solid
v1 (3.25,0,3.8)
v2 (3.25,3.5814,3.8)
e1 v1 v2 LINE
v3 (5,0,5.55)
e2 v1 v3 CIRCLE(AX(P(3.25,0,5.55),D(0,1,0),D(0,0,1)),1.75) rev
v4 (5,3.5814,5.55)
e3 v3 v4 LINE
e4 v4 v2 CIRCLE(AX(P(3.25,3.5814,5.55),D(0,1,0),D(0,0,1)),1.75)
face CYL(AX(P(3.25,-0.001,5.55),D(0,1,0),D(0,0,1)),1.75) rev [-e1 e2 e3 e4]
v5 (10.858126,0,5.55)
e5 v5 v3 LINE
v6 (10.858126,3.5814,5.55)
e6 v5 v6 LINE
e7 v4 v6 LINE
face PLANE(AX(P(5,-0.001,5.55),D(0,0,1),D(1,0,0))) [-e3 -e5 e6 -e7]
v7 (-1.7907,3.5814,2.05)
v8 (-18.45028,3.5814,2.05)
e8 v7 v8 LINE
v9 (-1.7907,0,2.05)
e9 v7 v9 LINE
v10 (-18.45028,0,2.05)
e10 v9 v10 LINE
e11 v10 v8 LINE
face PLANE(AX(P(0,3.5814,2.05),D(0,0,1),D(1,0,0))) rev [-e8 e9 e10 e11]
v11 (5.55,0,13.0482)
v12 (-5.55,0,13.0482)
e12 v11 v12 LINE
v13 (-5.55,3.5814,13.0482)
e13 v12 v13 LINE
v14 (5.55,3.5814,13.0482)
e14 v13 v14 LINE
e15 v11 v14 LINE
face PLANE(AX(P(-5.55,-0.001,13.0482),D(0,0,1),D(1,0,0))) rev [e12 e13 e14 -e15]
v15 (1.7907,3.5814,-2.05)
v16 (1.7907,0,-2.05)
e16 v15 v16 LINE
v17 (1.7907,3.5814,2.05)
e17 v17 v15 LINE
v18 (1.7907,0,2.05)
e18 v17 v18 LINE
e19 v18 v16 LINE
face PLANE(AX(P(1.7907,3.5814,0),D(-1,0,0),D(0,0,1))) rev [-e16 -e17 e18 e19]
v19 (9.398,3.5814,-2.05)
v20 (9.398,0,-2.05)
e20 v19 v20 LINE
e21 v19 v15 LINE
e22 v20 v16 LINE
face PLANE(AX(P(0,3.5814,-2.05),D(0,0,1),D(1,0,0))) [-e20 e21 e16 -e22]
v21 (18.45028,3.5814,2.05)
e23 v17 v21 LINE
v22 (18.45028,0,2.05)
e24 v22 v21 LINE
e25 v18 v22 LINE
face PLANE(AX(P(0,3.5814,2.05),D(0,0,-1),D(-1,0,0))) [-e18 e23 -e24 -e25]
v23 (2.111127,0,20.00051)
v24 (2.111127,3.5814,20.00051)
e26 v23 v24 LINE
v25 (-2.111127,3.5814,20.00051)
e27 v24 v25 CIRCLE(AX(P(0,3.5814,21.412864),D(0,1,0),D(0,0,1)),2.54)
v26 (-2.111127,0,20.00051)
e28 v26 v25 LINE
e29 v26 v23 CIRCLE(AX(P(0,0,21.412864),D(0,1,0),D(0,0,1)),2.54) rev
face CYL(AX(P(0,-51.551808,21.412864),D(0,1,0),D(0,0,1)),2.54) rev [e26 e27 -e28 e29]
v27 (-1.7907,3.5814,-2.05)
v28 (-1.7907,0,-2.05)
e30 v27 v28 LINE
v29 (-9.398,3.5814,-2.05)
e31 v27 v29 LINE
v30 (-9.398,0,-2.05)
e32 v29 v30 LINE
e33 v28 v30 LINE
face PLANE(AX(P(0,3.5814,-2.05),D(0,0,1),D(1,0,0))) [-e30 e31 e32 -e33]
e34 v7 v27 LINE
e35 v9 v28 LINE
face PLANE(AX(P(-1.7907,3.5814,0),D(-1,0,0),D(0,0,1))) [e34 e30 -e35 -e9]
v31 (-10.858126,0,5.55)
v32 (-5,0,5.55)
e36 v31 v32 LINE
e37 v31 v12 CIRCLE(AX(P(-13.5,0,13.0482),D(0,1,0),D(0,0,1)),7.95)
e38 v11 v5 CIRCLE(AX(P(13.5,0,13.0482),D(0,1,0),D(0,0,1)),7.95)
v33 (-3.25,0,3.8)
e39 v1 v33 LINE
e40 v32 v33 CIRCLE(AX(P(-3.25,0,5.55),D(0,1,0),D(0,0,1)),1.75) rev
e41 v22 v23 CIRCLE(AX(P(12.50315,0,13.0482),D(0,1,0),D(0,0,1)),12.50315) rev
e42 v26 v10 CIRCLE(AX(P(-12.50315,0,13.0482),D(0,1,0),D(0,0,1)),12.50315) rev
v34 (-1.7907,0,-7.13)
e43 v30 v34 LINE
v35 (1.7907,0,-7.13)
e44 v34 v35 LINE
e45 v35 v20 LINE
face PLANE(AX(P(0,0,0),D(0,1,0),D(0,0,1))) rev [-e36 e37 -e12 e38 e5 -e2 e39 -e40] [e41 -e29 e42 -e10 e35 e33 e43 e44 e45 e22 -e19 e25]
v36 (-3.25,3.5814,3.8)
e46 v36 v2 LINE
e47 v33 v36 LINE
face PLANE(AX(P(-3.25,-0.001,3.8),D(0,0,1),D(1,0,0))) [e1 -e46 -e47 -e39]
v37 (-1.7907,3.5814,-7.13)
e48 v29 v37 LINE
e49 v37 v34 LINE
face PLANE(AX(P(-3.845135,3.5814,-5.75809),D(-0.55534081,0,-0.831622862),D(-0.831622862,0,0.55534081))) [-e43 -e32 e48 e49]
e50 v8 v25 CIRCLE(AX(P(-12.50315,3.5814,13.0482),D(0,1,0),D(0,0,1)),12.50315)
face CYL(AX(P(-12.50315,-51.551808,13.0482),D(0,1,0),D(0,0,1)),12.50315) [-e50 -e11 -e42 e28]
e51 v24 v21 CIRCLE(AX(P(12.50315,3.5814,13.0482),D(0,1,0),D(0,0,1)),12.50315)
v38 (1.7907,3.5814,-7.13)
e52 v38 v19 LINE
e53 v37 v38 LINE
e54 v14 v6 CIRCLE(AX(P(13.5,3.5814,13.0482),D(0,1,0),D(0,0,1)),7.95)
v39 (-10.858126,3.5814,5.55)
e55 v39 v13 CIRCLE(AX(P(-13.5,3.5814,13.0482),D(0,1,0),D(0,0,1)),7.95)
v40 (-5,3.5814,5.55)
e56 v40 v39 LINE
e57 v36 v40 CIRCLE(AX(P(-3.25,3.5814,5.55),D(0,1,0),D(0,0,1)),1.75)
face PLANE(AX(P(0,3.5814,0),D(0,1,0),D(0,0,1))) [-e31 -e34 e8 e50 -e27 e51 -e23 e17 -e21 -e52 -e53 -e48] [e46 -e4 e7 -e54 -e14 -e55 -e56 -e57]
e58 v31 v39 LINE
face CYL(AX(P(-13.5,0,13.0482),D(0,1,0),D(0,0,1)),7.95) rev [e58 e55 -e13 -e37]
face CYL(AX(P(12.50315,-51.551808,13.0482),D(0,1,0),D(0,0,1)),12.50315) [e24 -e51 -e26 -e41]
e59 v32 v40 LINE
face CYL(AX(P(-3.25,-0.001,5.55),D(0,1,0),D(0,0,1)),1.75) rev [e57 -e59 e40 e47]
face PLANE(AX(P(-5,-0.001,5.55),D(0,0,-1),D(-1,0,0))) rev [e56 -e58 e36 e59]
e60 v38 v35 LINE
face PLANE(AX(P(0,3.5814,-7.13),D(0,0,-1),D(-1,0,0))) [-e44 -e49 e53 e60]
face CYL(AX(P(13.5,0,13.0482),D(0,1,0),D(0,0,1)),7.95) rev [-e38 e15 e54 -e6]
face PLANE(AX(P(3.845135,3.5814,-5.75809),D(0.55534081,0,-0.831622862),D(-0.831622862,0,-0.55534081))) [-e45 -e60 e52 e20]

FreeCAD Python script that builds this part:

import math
import FreeCAD as App
import Part
import Sketcher

doc = App.newDocument("Part")
body = doc.addObject("PartDesign::Body", "Body")

# Sketch on XZ plane
sketch1 = doc.addObject("Sketcher::SketchObject", "Sketch")
body.addObject(sketch1)
sketch1.AttachmentSupport = (doc.XZ_Plane, [""])
sketch1.MapMode = "FlatFace"
sketch1.addGeometry([
    Part.LineSegment(App.Vector(-25.0063, 13.0482, 0), App.Vector(25.0063, 13.0482, 0)),  # 0
    Part.LineSegment(App.Vector(25.0063, 13.0482, 0), App.Vector(25.0063, 2.05, 0)),  # 1
    Part.LineSegment(App.Vector(25.0063, 2.05, 0), App.Vector(1.7907, 2.05, 0)),  # 2
    Part.LineSegment(App.Vector(1.7907, 2.05, 0), App.Vector(1.7907, -2.05, 0)),  # 3
    Part.LineSegment(App.Vector(1.7907, -2.05, 0), App.Vector(9.398, -2.05, 0)),  # 4
    Part.LineSegment(App.Vector(9.398, -2.05, 0), App.Vector(1.7907, -7.13, 0)),  # 5
    Part.LineSegment(App.Vector(1.7907, -7.13, 0), App.Vector(-1.7907, -7.13, 0)),  # 6
    Part.LineSegment(App.Vector(-1.7907, -7.13, 0), App.Vector(-9.398, -2.05, 0)),  # 7
    Part.LineSegment(App.Vector(-9.398, -2.05, 0), App.Vector(-1.7907, -2.05, 0)),  # 8
    Part.LineSegment(App.Vector(-1.7907, -2.05, 0), App.Vector(-1.7907, 2.05, 0)),  # 9
    Part.LineSegment(App.Vector(-1.7907, 2.05, 0), App.Vector(-25.0063, 2.05, 0)),  # 10
    Part.LineSegment(App.Vector(-25.0063, 2.05, 0), App.Vector(-25.0063, 13.0482, 0)),  # 11
], False)
sketch1.addConstraint([
    Sketcher.Constraint("Coincident", 0, 2, 1, 1),
    Sketcher.Constraint("Coincident", 1, 2, 2, 1),
    Sketcher.Constraint("Coincident", 2, 2, 3, 1),
    Sketcher.Constraint("Coincident", 3, 2, 4, 1),
    Sketcher.Constraint("Coincident", 4, 2, 5, 1),
    Sketcher.Constraint("Coincident", 5, 2, 6, 1),
    Sketcher.Constraint("Coincident", 6, 2, 7, 1),
    Sketcher.Constraint("Coincident", 7, 2, 8, 1),
    Sketcher.Constraint("Coincident", 8, 2, 9, 1),
    Sketcher.Constraint("Coincident", 9, 2, 10, 1),
    Sketcher.Constraint("Coincident", 10, 2, 11, 1),
    Sketcher.Constraint("Coincident", 11, 2, 0, 1),
    Sketcher.Constraint("Horizontal", 0),
    Sketcher.Constraint("Vertical", 1),
    Sketcher.Constraint("Horizontal", 2),
    Sketcher.Constraint("Vertical", 3),
    Sketcher.Constraint("Horizontal", 4),
    Sketcher.Constraint("Horizontal", 6),
    Sketcher.Constraint("Horizontal", 8),
    Sketcher.Constraint("Vertical", 9),
    Sketcher.Constraint("Horizontal", 10),
    Sketcher.Constraint("Vertical", 11),
    Sketcher.Constraint("Symmetric", 2, 2, 8, 2, -1, 1),
    Sketcher.Constraint("Symmetric", 4, 2, 7, 2, -2),
    Sketcher.Constraint("Symmetric", 1, 2, 10, 2, -2),
    Sketcher.Constraint("Vertical", 3, 2, 5, 2),
    Sketcher.Constraint("Vertical", 6, 2, 8, 2),
    Sketcher.Constraint("DistanceY", 3, 2, 3, 1, 4.1),
    Sketcher.Constraint("DistanceY", 5, 2, -1, 1, 7.13),
    Sketcher.Constraint("DistanceX", 0, 1, 0, 2, 50.0126),
    Sketcher.Constraint("DistanceX", 2, 2, 2, 1, 23.2156),
    Sketcher.Constraint("DistanceX", 4, 1, 4, 2, 7.6073),
    Sketcher.Constraint("DistanceY", 1, 2, 1, 1, 10.9982),
])
pad1 = doc.addObject("PartDesign::Pad", "Pad")
body.addObject(pad1)
pad1.Profile = sketch1
pad1.Length = 3.5814
pad1.Reversed = True

# Sketch on XZ plane
sketch2 = doc.addObject("Sketcher::SketchObject", "Sketch001")
body.addObject(sketch2)
sketch2.AttachmentSupport = (doc.XZ_Plane, [""])
sketch2.MapMode = "FlatFace"
sketch2.AttachmentOffset = App.Placement(App.Vector(0, 0, -3.5814), App.Rotation())
sketch2.addGeometry([
    Part.LineSegment(App.Vector(-25.0063, 2.05, 0), App.Vector(-25.0063, 13.0482, 0)),  # 0
    Part.ArcOfCircle(Part.Circle(App.Vector(-12.50315, 13.0482, 0), App.Vector(0, 0, 1), 12.50315), math.radians(33.782702), math.radians(180)),  # 1
    Part.ArcOfCircle(Part.Circle(App.Vector(0, 21.412864, 0), App.Vector(0, 0, 1), 2.54), math.radians(-146.217298), math.radians(-33.782702)),  # 2
    Part.ArcOfCircle(Part.Circle(App.Vector(12.50315, 13.0482, 0), App.Vector(0, 0, 1), 12.50315), math.radians(0), math.radians(146.217298)),  # 3
    Part.LineSegment(App.Vector(25.0063, 13.0482, 0), App.Vector(25.0063, 2.05, 0)),  # 4
    Part.LineSegment(App.Vector(25.0063, 2.05, 0), App.Vector(1.7907, 2.05, 0)),  # 5
    Part.LineSegment(App.Vector(1.7907, 2.05, 0), App.Vector(1.7907, -2.05, 0)),  # 6
    Part.LineSegment(App.Vector(1.7907, -2.05, 0), App.Vector(9.398, -2.05, 0)),  # 7
    Part.LineSegment(App.Vector(9.398, -2.05, 0), App.Vector(1.7907, -7.13, 0)),  # 8
    Part.LineSegment(App.Vector(1.7907, -7.13, 0), App.Vector(-1.7907, -7.13, 0)),  # 9
    Part.LineSegment(App.Vector(-1.7907, -7.13, 0), App.Vector(-9.398, -2.05, 0)),  # 10
    Part.LineSegment(App.Vector(-9.398, -2.05, 0), App.Vector(-1.7907, -2.05, 0)),  # 11
    Part.LineSegment(App.Vector(-1.7907, -2.05, 0), App.Vector(-1.7907, 2.05, 0)),  # 12
    Part.LineSegment(App.Vector(-1.7907, 2.05, 0), App.Vector(-25.0063, 2.05, 0)),  # 13
], False)
sketch2.addConstraint([
    Sketcher.Constraint("Tangent", 0, 2, 1, 2),
    Sketcher.Constraint("Tangent", 1, 1, 2, 1),
    Sketcher.Constraint("Tangent", 2, 2, 3, 2),
    Sketcher.Constraint("Tangent", 3, 1, 4, 1),
    Sketcher.Constraint("Coincident", 4, 2, 5, 1),
    Sketcher.Constraint("Coincident", 5, 2, 6, 1),
    Sketcher.Constraint("Coincident", 6, 2, 7, 1),
    Sketcher.Constraint("Coincident", 7, 2, 8, 1),
    Sketcher.Constraint("Coincident", 8, 2, 9, 1),
    Sketcher.Constraint("Coincident", 9, 2, 10, 1),
    Sketcher.Constraint("Coincident", 10, 2, 11, 1),
    Sketcher.Constraint("Coincident", 11, 2, 12, 1),
    Sketcher.Constraint("Coincident", 12, 2, 13, 1),
    Sketcher.Constraint("Coincident", 13, 2, 0, 1),
    Sketcher.Constraint("Vertical", 0),
    Sketcher.Constraint("Vertical", 4),
    Sketcher.Constraint("Horizontal", 5),
    Sketcher.Constraint("Vertical", 6),
    Sketcher.Constraint("Horizontal", 7),
    Sketcher.Constraint("Horizontal", 9),
    Sketcher.Constraint("Horizontal", 11),
    Sketcher.Constraint("Vertical", 12),
    Sketcher.Constraint("Horizontal", 13),
    Sketcher.Constraint("Equal", 1, 3),
    Sketcher.Constraint("Symmetric", 5, 2, 11, 2, -1, 1),
    Sketcher.Constraint("Symmetric", 1, 3, 3, 3, -2),
    Sketcher.Constraint("Symmetric", 7, 2, 10, 2, -2),
    Sketcher.Constraint("Horizontal", 5, 2, 12, 2),
    Sketcher.Constraint("Vertical", 6, 2, 8, 2),
    Sketcher.Constraint("Vertical", 9, 2, 11, 2),
    Sketcher.Constraint("Radius", 2, 2.54),
    Sketcher.Constraint("DistanceY", 6, 2, 6, 1, 4.1),
    Sketcher.Constraint("DistanceY", 8, 2, -1, 1, 7.13),
    Sketcher.Constraint("Radius", 1, 12.50315),
    Sketcher.Constraint("DistanceX", 5, 2, 5, 1, 23.2156),
    Sketcher.Constraint("DistanceX", 7, 1, 7, 2, 7.6073),
    Sketcher.Constraint("DistanceX", 9, 2, 9, 1, 3.5814),
    Sketcher.Constraint("DistanceY", 0, 1, 0, 2, 10.9982),
])
pad2 = doc.addObject("PartDesign::Pad", "Pad001")
body.addObject(pad2)
pad2.Profile = sketch2
pad2.Length = 3.5814

# Sketch on XZ plane
sketch3 = doc.addObject("Sketcher::SketchObject", "Sketch002")
body.addObject(sketch3)
sketch3.AttachmentSupport = (doc.XZ_Plane, [""])
sketch3.MapMode = "FlatFace"
sketch3.AttachmentOffset = App.Placement(App.Vector(0, 0, -3.5814), App.Rotation())
sketch3.addGeometry([
    Part.Circle(App.Vector(-13.5, 13.0482, 0), App.Vector(0, 0, 1), 7.95),
    Part.Circle(App.Vector(13.5, 13.0482, 0), App.Vector(0, 0, 1), 7.95),
], False)
sketch3.addConstraint([
    Sketcher.Constraint("Equal", 0, 1),
    Sketcher.Constraint("Symmetric", 0, 3, 1, 3, -2),
    Sketcher.Constraint("Diameter", 0, 15.9),
    Sketcher.Constraint("DistanceX", 0, 3, 1, 3, 27.0),
    Sketcher.Constraint("DistanceY", -1, 1, 0, 3, 13.0482),
])
pocket1 = doc.addObject("PartDesign::Pocket", "Pocket")
body.addObject(pocket1)
pocket1.Profile = sketch3
pocket1.Type = "ThroughAll"
pocket1.Reversed = True

# Sketch on XZ plane
sketch4 = doc.addObject("Sketcher::SketchObject", "Sketch003")
body.addObject(sketch4)
sketch4.AttachmentSupport = (doc.XZ_Plane, [""])
sketch4.MapMode = "FlatFace"
sketch4.AttachmentOffset = App.Placement(App.Vector(0, 0, -3.5814), App.Rotation())
sketch4.addGeometry([
    Part.LineSegment(App.Vector(3.25, 3.8, 0), App.Vector(-3.25, 3.8, 0)),  # 0
    Part.ArcOfCircle(Part.Circle(App.Vector(-3.25, 5.55, 0), App.Vector(0, 0, 1), 1.75), math.radians(180), math.radians(270)),  # 1
    Part.LineSegment(App.Vector(-5, 5.55, 0), App.Vector(-10.858126, 5.55, 0)),  # 2
    Part.ArcOfCircle(Part.Circle(App.Vector(-13.5, 13.0482, 0), App.Vector(0, 0, 1), 7.95), math.radians(-70.590886), math.radians(0)),  # 3
    Part.LineSegment(App.Vector(-5.55, 13.0482, 0), App.Vector(5.55, 13.0482, 0)),  # 4
    Part.ArcOfCircle(Part.Circle(App.Vector(13.5, 13.0482, 0), App.Vector(0, 0, 1), 7.95), math.radians(180), math.radians(250.590886)),  # 5
    Part.LineSegment(App.Vector(10.858126, 5.55, 0), App.Vector(5, 5.55, 0)),  # 6
    Part.ArcOfCircle(Part.Circle(App.Vector(3.25, 5.55, 0), App.Vector(0, 0, 1), 1.75), math.radians(-90), math.radians(0)),  # 7
], False)
sketch4.addConstraint([
    Sketcher.Constraint("Tangent", 0, 2, 1, 2),
    Sketcher.Constraint("Coincident", 1, 1, 2, 1),
    Sketcher.Constraint("Coincident", 2, 2, 3, 1),
    Sketcher.Constraint("Coincident", 3, 2, 4, 1),
    Sketcher.Constraint("Coincident", 4, 2, 5, 1),
    Sketcher.Constraint("Coincident", 5, 2, 6, 1),
    Sketcher.Constraint("Coincident", 6, 2, 7, 2),
    Sketcher.Constraint("Tangent", 7, 1, 0, 1),
    Sketcher.Constraint("Horizontal", 0),
    Sketcher.Constraint("Horizontal", 2),
    Sketcher.Constraint("Horizontal", 4),
    Sketcher.Constraint("Horizontal", 6),
    Sketcher.Constraint("Equal", 3, 5),
    Sketcher.Constraint("Equal", 1, 7),
    Sketcher.Constraint("Symmetric", 3, 3, 5, 3, -2),
    Sketcher.Constraint("Symmetric", 1, 1, 6, 2, -2),
    Sketcher.Constraint("Horizontal", 7, 3, 1, 1),
    Sketcher.Constraint("Horizontal", 5, 3, 3, 2),
    Sketcher.Constraint("Radius", 1, 1.75),
    Sketcher.Constraint("Radius", 3, 7.95),
    Sketcher.Constraint("DistanceX", 0, 2, 0, 1, 6.5),
    Sketcher.Constraint("DistanceX", 4, 1, 4, 2, 11.1),
    Sketcher.Constraint("DistanceY", -1, 1, 0, 2, 3.8),
    Sketcher.Constraint("DistanceY", -1, 1, 3, 3, 13.0482),
])
pocket2 = doc.addObject("PartDesign::Pocket", "Pocket001")
body.addObject(pocket2)
pocket2.Profile = sketch4
pocket2.Type = "UpToFirst"
pocket2.Reversed = True

# Sketch on XZ plane
sketch5 = doc.addObject("Sketcher::SketchObject", "Sketch004")
body.addObject(sketch5)
sketch5.AttachmentSupport = (doc.XZ_Plane, [""])
sketch5.MapMode = "FlatFace"
sketch5.AttachmentOffset = App.Placement(App.Vector(0, 0, -3.5814), App.Rotation())
sketch5.addGeometry([
    Part.LineSegment(App.Vector(-18.45028, 2.05, 0), App.Vector(-25.0063, 2.05, 0)),
    Part.LineSegment(App.Vector(-25.0063, 2.05, 0), App.Vector(-25.0063, 13.0482, 0)),
    Part.ArcOfCircle(Part.Circle(App.Vector(-12.50315, 13.0482, 0), App.Vector(0, 0, 1), 12.50315), math.radians(-180), math.radians(-118.401715)),
], False)
sketch5.addConstraint([
    Sketcher.Constraint("Coincident", 0, 2, 1, 1),
    Sketcher.Constraint("Tangent", 1, 2, 2, 1),
    Sketcher.Constraint("Coincident", 2, 2, 0, 1),
    Sketcher.Constraint("Horizontal", 0),
    Sketcher.Constraint("Vertical", 1),
    Sketcher.Constraint("DistanceY", -1, 1, 0, 2, 2.05),
    Sketcher.Constraint("Radius", 2, 12.50315),
    Sketcher.Constraint("DistanceY", 1, 1, 1, 2, 10.9982),
    Sketcher.Constraint("DistanceX", 0, 2, -1, 1, 25.0063),
])
pocket3 = doc.addObject("PartDesign::Pocket", "Pocket002")
body.addObject(pocket3)
pocket3.Profile = sketch5
pocket3.Type = "UpToFirst"
pocket3.Reversed = True

# Sketch on XZ plane
sketch6 = doc.addObject("Sketcher::SketchObject", "Sketch005")
body.addObject(sketch6)
sketch6.AttachmentSupport = (doc.XZ_Plane, [""])
sketch6.MapMode = "FlatFace"
sketch6.AttachmentOffset = App.Placement(App.Vector(0, 0, -3.5814), App.Rotation())
sketch6.addGeometry([
    Part.LineSegment(App.Vector(25.0063, 13.0482, 0), App.Vector(25.0063, 2.05, 0)),
    Part.LineSegment(App.Vector(25.0063, 2.05, 0), App.Vector(18.45028, 2.05, 0)),
    Part.ArcOfCircle(Part.Circle(App.Vector(12.50315, 13.0482, 0), App.Vector(0, 0, 1), 12.50315), math.radians(-61.598285), math.radians(0)),
], False)
sketch6.addConstraint([
    Sketcher.Constraint("Coincident", 0, 2, 1, 1),
    Sketcher.Constraint("Coincident", 1, 2, 2, 1),
    Sketcher.Constraint("Tangent", 2, 2, 0, 1),
    Sketcher.Constraint("Vertical", 0),
    Sketcher.Constraint("Horizontal", 1),
    Sketcher.Constraint("DistanceY", -1, 1, 0, 2, 2.05),
    Sketcher.Constraint("Radius", 2, 12.50315),
    Sketcher.Constraint("DistanceY", 0, 2, 0, 1, 10.9982),
    Sketcher.Constraint("DistanceX", -1, 1, 0, 2, 25.0063),
])
pocket4 = doc.addObject("PartDesign::Pocket", "Pocket003")
body.addObject(pocket4)
pocket4.Profile = sketch6
pocket4.Type = "UpToFirst"
pocket4.Reversed = True

doc.recompute()
